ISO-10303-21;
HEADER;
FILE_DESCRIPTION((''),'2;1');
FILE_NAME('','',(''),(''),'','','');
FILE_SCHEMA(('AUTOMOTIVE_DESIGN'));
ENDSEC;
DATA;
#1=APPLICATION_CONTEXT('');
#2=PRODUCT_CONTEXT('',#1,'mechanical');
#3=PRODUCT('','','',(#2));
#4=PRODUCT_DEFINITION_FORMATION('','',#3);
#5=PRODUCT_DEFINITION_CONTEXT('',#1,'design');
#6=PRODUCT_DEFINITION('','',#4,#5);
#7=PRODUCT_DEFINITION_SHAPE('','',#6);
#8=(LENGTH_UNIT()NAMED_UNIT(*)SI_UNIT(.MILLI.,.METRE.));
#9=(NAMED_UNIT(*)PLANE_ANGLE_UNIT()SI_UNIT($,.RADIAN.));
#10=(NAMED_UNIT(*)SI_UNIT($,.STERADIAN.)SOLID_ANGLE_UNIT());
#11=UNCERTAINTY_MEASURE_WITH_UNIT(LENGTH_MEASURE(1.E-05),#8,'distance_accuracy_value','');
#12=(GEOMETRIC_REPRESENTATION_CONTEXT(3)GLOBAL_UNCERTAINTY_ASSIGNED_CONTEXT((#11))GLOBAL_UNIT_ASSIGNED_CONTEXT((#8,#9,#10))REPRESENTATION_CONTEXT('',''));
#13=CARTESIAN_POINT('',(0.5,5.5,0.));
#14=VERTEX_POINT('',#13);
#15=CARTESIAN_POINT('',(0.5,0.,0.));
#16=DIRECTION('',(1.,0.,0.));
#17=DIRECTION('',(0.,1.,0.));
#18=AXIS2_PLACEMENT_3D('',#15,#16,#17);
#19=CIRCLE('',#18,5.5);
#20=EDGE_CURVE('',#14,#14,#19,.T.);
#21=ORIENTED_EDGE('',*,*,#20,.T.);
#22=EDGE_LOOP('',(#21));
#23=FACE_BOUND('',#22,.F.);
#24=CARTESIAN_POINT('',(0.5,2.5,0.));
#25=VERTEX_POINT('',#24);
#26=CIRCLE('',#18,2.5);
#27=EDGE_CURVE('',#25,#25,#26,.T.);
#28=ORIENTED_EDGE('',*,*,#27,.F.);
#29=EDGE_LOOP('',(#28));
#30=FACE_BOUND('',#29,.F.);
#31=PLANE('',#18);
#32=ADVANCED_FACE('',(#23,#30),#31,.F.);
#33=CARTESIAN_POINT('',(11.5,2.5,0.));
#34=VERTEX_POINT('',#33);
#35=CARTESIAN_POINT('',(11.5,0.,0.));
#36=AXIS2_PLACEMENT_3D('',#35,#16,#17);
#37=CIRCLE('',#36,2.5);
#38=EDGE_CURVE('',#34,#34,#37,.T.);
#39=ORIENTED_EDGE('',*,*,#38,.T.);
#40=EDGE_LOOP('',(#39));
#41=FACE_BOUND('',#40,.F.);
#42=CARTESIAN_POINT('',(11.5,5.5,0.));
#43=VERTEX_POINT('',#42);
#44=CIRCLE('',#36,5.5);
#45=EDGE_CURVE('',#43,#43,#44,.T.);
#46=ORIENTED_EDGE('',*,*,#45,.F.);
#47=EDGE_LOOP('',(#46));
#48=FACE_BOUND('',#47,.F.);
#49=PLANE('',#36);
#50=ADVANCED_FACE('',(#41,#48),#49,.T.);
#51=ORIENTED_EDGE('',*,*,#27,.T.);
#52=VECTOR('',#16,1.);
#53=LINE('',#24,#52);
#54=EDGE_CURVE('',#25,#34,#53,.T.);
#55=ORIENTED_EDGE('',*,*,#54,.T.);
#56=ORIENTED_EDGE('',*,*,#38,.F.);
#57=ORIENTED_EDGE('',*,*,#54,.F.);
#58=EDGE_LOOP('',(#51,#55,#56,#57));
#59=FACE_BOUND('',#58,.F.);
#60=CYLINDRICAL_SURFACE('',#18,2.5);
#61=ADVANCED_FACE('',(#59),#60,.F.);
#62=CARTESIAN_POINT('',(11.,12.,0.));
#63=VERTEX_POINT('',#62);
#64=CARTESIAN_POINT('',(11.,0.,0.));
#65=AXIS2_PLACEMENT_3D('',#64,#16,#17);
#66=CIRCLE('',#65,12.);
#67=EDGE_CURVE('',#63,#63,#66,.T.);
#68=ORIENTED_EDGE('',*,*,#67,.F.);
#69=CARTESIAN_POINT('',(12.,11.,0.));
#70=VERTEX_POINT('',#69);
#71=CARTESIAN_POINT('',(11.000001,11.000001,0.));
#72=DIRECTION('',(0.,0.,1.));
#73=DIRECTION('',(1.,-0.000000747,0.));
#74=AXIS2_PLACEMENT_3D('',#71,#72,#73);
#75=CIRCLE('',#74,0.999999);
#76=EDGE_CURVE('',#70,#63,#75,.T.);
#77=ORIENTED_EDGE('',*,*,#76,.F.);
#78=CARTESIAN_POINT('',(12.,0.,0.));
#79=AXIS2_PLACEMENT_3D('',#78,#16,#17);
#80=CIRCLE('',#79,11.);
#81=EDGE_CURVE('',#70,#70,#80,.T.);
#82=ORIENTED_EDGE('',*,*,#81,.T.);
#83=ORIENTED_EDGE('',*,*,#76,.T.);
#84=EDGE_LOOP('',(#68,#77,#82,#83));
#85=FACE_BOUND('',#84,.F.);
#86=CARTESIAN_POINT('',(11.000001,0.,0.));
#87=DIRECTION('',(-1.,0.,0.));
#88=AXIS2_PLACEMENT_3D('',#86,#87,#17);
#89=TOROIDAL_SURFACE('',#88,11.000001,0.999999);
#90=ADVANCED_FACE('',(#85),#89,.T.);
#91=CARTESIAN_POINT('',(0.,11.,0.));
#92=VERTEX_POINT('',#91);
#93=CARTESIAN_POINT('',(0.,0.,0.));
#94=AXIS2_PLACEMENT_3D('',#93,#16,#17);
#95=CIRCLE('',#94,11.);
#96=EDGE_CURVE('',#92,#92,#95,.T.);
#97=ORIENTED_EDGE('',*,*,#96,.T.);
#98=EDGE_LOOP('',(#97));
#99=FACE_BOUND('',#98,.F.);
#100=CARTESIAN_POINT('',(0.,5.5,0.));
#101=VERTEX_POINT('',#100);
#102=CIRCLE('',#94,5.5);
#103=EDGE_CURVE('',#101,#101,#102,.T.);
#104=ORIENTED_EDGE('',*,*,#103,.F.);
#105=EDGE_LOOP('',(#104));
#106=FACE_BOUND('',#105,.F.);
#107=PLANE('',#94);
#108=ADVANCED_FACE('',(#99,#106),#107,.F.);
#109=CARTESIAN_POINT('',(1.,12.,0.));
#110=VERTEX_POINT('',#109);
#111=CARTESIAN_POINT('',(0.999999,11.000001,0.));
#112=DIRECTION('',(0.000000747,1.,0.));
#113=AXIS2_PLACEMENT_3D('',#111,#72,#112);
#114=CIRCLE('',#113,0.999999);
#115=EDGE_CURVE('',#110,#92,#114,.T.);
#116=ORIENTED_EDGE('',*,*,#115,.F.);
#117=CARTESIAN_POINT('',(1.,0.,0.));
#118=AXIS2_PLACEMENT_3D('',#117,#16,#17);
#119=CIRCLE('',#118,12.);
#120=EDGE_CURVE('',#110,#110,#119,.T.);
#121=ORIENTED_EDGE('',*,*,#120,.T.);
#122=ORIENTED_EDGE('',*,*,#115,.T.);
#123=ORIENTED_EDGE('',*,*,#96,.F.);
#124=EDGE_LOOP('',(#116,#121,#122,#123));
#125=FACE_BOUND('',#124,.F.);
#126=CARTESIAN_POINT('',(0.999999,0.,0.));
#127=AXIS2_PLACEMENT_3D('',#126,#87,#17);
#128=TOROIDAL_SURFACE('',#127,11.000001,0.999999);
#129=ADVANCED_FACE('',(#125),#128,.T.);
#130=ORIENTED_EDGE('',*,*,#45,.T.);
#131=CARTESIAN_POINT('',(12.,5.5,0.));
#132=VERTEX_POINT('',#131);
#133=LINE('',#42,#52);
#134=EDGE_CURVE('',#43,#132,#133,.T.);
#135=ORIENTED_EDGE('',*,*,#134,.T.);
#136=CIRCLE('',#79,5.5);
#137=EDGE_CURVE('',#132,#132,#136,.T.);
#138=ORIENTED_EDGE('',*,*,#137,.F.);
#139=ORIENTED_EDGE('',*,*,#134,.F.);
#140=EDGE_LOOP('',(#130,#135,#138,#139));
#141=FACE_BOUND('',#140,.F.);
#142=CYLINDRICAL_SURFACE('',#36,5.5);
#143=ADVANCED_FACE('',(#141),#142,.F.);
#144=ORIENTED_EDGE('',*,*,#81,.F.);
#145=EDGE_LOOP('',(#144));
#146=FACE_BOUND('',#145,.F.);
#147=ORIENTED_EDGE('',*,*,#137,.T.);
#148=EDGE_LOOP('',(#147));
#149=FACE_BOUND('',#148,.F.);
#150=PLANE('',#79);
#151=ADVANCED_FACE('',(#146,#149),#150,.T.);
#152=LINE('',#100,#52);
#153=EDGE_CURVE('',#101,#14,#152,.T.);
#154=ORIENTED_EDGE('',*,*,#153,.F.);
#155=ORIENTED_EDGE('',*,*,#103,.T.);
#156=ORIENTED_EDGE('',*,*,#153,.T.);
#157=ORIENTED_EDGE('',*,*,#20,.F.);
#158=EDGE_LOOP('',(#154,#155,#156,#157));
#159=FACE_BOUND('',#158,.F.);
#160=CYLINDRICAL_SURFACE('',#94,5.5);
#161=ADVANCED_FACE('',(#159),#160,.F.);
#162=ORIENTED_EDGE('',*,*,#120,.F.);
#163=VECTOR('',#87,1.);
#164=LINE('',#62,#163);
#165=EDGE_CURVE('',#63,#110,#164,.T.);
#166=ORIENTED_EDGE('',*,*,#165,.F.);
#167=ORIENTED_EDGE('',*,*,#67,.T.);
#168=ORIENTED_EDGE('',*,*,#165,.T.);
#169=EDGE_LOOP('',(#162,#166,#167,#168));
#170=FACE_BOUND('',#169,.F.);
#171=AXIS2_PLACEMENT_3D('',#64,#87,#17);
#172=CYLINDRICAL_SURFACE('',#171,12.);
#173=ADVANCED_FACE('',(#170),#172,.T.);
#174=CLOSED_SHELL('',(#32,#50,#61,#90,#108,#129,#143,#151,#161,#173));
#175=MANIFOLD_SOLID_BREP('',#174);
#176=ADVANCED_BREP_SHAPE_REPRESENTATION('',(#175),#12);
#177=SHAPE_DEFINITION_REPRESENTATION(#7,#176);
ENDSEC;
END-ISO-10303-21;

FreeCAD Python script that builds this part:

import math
import FreeCAD as App
import Part
import Sketcher
Q = App.Units.Quantity

doc = App.newDocument("Part")
params = doc.addObject("Spreadsheet::Sheet", "Params")
for row, (alias, value) in enumerate([
    ("sketch1_radius", "0.999999 mm"),
    ("sketch1_width", "11 mm"),
    ("sketch1_width2", "10 mm"),
    ("sketch1_height", "3 mm"),
    ("sketch1_height2", "5.5 mm"),
    ("revolution_angle", "360 deg"),
], start=1):
    params.set(f"A{row}", alias)
    params.set(f"B{row}", "=" + value)
    params.setAlias(f"B{row}", alias)

body = doc.addObject("PartDesign::Body", "Body")

# Sketch on XY plane
sketch1 = body.newObject("Sketcher::SketchObject", "Sketch")
sketch1.AttachmentSupport = (doc.getObject("XY_Plane"), [""])
sketch1.MapMode = "FlatFace"
sketch1.addGeometry(Part.LineSegment(App.Vector(0, 11, 0), App.Vector(0, 5.5, 0)), False)
sketch1.addGeometry(Part.LineSegment(App.Vector(0, 5.5, 0), App.Vector(0.5, 5.5, 0)), False)
sketch1.addGeometry(Part.LineSegment(App.Vector(0.5, 5.5, 0), App.Vector(0.5, 2.5, 0)), False)
sketch1.addGeometry(Part.LineSegment(App.Vector(0.5, 2.5, 0), App.Vector(11.5, 2.5, 0)), False)
sketch1.addGeometry(Part.LineSegment(App.Vector(11.5, 2.5, 0), App.Vector(11.5, 5.5, 0)), False)
sketch1.addGeometry(Part.LineSegment(App.Vector(11.5, 5.5, 0), App.Vector(12, 5.5, 0)), False)
sketch1.addGeometry(Part.LineSegment(App.Vector(12, 5.5, 0), App.Vector(12, 11, 0)), False)
sketch1.addGeometry(Part.ArcOfCircle(Part.Circle(App.Vector(11.000001, 11.000001, 0), App.Vector(0, 0, 1), 0.999999), math.radians(-0.000043), math.radians(90.000043)), False)
sketch1.addGeometry(Part.LineSegment(App.Vector(11, 12, 0), App.Vector(1, 12, 0)), False)
sketch1.addGeometry(Part.ArcOfCircle(Part.Circle(App.Vector(0.999999, 11.000001, 0), App.Vector(0, 0, 1), 0.999999), math.radians(89.999957), math.radians(180.000043)), False)
sketch1.addConstraint(Sketcher.Constraint("Coincident", 0, 2, 1, 1))
sketch1.addConstraint(Sketcher.Constraint("Coincident", 1, 2, 2, 1))
sketch1.addConstraint(Sketcher.Constraint("Coincident", 2, 2, 3, 1))
sketch1.addConstraint(Sketcher.Constraint("Coincident", 3, 2, 4, 1))
sketch1.addConstraint(Sketcher.Constraint("Coincident", 4, 2, 5, 1))
sketch1.addConstraint(Sketcher.Constraint("Coincident", 5, 2, 6, 1))
sketch1.addConstraint(Sketcher.Constraint("Tangent", 6, 2, 7, 1))
sketch1.addConstraint(Sketcher.Constraint("Tangent", 7, 2, 8, 1))
sketch1.addConstraint(Sketcher.Constraint("Tangent", 8, 2, 9, 1))
sketch1.addConstraint(Sketcher.Constraint("Tangent", 9, 2, 0, 1))
sketch1.addConstraint(Sketcher.Constraint("Vertical", 0))
sketch1.addConstraint(Sketcher.Constraint("Horizontal", 1))
sketch1.addConstraint(Sketcher.Constraint("Vertical", 2))
sketch1.addConstraint(Sketcher.Constraint("Horizontal", 3))
sketch1.addConstraint(Sketcher.Constraint("Vertical", 4))
sketch1.addConstraint(Sketcher.Constraint("Horizontal", 5))
sketch1.addConstraint(Sketcher.Constraint("Vertical", 6))
sketch1.addConstraint(Sketcher.Constraint("Horizontal", 8))
sketch1.addConstraint(Sketcher.Constraint("Equal", 7, 9))
sketch1.addConstraint(Sketcher.Constraint("PointOnObject", 0, 2, -2))
sketch1.addConstraint(Sketcher.Constraint("Horizontal", 1, 2, 4, 2))
sketch1.addConstraint(Sketcher.Constraint("Equal", 1, 5))
sketch1.addConstraint(Sketcher.Constraint("Radius", 7, Q("0.999999 mm")))
sketch1.addConstraint(Sketcher.Constraint("DistanceX", 3, 1, 3, 2, Q("11 mm")))
sketch1.addConstraint(Sketcher.Constraint("DistanceX", 8, 2, 8, 1, Q("10 mm")))
sketch1.addConstraint(Sketcher.Constraint("DistanceY", 2, 2, 2, 1, Q("3 mm")))
sketch1.addConstraint(Sketcher.Constraint("DistanceY", 0, 2, 0, 1, Q("5.5 mm")))
sketch1.addConstraint(Sketcher.Constraint("DistanceY", -1, 1, 7, 3, Q("11.000001 mm")))
sketch1.setExpression("Constraints[22]", "Params.sketch1_radius")
sketch1.setExpression("Constraints[23]", "Params.sketch1_width")
sketch1.setExpression("Constraints[24]", "Params.sketch1_width2")
sketch1.setExpression("Constraints[25]", "Params.sketch1_height")
sketch1.setExpression("Constraints[26]", "Params.sketch1_height2")
revolution = body.newObject("PartDesign::Revolution", "Revolution")
revolution.Profile = sketch1
revolution.ReferenceAxis = (sketch1, ["H_Axis"])
revolution.setExpression("Angle", "Params.revolution_angle")

doc.recompute()
